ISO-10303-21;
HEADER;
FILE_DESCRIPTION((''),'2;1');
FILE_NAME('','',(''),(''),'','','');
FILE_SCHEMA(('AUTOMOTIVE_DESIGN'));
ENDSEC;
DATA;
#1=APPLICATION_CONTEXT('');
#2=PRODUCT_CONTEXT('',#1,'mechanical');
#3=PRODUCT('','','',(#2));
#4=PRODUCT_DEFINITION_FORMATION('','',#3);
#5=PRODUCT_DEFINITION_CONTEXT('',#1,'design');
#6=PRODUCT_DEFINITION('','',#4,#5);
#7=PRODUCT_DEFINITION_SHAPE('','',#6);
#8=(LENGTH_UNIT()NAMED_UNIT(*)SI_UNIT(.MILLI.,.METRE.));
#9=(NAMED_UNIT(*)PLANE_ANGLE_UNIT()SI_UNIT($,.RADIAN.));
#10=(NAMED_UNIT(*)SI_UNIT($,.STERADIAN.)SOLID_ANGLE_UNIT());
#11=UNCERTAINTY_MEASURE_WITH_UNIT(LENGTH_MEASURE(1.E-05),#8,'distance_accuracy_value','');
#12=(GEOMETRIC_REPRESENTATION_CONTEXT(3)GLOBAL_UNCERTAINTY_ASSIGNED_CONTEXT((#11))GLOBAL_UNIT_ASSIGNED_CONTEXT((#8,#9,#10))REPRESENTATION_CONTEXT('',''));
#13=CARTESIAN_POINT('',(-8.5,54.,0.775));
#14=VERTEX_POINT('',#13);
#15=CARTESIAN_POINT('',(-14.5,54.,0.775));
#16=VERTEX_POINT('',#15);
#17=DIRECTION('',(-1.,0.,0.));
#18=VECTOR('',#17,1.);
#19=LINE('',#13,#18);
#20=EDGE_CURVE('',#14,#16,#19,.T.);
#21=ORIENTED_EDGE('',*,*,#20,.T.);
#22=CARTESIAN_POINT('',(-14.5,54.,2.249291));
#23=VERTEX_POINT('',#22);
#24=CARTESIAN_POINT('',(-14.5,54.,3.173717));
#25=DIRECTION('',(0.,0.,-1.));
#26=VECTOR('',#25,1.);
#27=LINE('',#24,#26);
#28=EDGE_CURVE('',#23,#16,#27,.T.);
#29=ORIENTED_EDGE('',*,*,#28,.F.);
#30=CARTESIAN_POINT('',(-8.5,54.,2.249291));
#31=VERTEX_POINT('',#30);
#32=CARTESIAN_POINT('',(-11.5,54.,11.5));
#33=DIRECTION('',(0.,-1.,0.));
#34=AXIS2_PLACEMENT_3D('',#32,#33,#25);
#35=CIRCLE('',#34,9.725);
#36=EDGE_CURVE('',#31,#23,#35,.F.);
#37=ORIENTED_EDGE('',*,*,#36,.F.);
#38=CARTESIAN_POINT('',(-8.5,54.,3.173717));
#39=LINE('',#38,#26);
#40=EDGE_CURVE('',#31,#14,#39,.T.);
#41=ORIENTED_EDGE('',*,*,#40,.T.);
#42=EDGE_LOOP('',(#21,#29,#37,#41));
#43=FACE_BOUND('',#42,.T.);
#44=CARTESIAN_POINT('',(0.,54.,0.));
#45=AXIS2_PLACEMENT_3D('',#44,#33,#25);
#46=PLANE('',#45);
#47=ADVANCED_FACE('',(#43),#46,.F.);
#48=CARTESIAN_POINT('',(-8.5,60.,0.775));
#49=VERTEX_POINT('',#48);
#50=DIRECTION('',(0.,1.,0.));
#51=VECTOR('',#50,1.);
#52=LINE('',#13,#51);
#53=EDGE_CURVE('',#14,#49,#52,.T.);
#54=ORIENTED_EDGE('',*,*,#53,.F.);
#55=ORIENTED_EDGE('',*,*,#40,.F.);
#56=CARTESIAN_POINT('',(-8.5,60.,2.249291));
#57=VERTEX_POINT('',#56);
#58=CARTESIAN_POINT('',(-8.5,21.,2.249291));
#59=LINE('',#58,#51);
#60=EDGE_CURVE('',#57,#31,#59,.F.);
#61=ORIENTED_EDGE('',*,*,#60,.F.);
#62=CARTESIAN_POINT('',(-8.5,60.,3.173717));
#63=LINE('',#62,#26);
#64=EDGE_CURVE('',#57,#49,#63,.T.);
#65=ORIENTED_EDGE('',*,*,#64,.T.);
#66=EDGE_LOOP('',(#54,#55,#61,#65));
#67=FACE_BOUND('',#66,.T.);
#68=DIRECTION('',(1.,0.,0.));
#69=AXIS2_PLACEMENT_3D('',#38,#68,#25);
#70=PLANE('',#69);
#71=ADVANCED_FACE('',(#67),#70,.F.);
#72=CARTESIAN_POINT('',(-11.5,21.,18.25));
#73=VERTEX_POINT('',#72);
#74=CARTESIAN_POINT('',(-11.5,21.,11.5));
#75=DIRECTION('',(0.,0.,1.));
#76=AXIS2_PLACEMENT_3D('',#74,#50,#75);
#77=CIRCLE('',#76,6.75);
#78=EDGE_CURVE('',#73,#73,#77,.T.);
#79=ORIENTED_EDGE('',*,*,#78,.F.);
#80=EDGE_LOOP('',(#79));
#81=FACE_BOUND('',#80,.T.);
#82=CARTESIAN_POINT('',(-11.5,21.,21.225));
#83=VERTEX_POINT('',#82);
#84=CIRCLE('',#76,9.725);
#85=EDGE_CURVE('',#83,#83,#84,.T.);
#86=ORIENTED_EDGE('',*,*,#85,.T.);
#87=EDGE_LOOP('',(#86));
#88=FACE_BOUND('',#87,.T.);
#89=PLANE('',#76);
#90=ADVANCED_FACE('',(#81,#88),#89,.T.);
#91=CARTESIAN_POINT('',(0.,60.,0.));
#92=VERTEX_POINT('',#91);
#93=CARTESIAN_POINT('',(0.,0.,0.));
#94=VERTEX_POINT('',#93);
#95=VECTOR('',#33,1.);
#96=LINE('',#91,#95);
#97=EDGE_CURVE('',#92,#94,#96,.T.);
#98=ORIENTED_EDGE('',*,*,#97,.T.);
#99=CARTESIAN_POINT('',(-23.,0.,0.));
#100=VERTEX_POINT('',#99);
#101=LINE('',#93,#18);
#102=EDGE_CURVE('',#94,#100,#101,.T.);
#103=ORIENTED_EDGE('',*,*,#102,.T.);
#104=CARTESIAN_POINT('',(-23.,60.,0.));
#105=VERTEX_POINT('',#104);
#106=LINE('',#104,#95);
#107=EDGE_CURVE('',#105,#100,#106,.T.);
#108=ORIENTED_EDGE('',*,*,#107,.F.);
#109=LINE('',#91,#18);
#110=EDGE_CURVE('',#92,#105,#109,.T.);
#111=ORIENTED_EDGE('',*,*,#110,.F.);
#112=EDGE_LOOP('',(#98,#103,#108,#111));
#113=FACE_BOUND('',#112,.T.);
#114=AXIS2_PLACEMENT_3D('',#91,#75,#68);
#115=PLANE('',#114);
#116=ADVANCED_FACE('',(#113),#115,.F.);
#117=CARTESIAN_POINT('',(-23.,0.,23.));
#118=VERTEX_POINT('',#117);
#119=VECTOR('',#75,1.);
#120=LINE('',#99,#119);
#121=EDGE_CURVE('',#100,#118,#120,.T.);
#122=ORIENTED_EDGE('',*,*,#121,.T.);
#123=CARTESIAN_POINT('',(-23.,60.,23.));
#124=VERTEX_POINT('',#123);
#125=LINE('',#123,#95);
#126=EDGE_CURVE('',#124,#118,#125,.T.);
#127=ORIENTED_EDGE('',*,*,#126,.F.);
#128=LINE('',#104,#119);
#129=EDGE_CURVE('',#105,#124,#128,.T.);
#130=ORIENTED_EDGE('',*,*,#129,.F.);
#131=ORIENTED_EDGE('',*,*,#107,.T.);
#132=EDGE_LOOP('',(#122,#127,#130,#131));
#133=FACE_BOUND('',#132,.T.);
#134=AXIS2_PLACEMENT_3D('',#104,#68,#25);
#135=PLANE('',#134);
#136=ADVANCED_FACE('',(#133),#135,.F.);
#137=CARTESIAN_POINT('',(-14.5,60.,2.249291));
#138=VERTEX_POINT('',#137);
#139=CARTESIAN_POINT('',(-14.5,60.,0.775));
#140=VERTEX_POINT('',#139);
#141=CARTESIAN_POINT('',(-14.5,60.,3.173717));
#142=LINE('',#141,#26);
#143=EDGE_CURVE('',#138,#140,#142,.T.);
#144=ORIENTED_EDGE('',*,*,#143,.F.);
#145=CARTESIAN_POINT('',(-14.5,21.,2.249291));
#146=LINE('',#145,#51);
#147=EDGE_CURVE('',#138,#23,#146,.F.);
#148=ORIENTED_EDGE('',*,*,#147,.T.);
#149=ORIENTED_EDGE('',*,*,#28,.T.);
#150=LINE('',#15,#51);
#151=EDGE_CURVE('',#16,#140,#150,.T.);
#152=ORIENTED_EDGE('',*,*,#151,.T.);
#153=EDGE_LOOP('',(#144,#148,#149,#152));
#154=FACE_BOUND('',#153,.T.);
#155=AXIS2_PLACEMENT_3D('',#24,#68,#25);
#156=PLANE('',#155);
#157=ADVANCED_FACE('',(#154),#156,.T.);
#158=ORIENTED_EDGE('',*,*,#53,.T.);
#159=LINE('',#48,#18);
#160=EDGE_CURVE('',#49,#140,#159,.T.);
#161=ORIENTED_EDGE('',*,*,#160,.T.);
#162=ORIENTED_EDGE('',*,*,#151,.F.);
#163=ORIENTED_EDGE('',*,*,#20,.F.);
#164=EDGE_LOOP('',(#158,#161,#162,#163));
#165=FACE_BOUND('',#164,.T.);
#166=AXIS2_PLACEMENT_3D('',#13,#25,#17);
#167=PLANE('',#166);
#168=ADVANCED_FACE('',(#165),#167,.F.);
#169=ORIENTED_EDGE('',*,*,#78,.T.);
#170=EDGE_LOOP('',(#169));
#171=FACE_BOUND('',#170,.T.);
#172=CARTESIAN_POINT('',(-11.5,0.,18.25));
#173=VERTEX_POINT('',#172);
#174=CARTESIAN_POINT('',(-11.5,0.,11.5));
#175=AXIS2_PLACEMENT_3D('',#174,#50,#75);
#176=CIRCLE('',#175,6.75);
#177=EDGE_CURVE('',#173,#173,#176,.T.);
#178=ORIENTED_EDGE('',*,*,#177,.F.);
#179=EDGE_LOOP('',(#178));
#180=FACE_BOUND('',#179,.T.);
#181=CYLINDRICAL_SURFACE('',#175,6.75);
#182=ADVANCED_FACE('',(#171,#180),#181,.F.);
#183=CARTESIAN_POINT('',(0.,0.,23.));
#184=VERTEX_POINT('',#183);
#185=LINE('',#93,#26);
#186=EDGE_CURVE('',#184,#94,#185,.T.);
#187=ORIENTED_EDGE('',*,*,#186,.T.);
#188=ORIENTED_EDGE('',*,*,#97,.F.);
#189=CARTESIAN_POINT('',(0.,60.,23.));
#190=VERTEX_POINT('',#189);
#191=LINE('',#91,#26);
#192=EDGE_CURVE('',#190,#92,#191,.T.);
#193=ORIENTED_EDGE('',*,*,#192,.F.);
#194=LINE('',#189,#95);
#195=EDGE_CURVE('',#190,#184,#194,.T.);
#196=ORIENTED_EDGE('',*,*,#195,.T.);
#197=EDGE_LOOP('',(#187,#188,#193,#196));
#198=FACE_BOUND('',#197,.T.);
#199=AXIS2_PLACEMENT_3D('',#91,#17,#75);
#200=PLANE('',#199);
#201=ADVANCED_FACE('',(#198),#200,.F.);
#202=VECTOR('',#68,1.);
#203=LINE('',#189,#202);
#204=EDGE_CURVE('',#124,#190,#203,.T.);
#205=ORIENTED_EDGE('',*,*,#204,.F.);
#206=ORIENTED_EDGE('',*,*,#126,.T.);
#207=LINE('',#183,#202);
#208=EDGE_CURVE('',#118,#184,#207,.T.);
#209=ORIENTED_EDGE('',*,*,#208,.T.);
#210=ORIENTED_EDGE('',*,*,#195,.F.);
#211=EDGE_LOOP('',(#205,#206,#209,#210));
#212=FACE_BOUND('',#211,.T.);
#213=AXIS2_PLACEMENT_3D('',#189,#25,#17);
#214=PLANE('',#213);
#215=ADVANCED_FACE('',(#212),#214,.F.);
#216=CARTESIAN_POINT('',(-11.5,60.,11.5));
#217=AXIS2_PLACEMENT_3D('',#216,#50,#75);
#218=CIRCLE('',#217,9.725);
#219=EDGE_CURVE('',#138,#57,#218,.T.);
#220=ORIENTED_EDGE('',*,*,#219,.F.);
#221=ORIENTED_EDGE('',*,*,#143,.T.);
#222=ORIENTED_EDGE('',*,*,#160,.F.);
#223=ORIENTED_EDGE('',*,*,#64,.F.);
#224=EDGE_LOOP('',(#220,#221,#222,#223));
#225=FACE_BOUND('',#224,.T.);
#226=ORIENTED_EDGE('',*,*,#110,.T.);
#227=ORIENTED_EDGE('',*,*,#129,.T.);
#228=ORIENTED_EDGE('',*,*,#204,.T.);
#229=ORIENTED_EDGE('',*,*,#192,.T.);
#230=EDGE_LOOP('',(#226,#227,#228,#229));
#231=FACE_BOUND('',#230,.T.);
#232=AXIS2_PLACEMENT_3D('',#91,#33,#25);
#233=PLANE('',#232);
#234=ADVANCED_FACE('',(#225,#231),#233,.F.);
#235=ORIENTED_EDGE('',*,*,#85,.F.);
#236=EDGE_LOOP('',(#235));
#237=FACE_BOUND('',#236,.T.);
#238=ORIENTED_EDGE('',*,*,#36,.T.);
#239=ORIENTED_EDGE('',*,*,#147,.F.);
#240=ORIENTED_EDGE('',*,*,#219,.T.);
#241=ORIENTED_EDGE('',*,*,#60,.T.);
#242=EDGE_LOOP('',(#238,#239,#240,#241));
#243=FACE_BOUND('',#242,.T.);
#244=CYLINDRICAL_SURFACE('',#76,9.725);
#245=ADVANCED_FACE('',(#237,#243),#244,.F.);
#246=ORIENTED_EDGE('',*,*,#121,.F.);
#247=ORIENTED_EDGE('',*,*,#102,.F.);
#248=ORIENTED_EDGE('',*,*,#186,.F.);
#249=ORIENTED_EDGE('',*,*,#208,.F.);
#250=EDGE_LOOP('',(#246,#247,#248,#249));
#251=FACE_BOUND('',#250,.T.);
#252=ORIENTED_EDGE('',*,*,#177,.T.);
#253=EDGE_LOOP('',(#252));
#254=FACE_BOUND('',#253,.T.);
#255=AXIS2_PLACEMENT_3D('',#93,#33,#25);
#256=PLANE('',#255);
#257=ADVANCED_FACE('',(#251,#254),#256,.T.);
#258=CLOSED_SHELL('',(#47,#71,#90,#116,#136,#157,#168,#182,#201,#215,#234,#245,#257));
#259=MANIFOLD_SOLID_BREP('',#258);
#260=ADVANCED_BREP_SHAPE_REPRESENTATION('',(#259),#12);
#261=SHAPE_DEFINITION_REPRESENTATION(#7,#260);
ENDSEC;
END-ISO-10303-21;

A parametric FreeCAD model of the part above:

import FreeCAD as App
import Part
import Sketcher
from FreeCAD import Vector
Q = App.Units.Quantity


def add_polygon(sketch, points):
    """Adds a closed chain of lines whose ends are joined by coincident constraints."""
    first, n = sketch.GeometryCount, len(points)
    for a, b in zip(points, points[1:] + points[:1]):
        sketch.addGeometry(Part.LineSegment(App.Vector(*a, 0), App.Vector(*b, 0)), False)
    for i in range(n):
        sketch.addConstraint(Sketcher.Constraint("Coincident", first + i, 2, first + (i + 1) % n, 1))

doc = App.newDocument("Part")
body = doc.addObject("PartDesign::Body", "Body")

# Sketch on XZ plane
sketch1 = body.newObject("Sketcher::SketchObject", "Sketch")
sketch1.AttachmentSupport = (doc.getObject("XZ_Plane"), [""])
sketch1.MapMode = "FlatFace"
add_polygon(sketch1, [(0, 23), (0, 0), (-23, 0), (-23, 23)])  # lines 0-3
sketch1.addConstraint([
    Sketcher.Constraint("Vertical", 0),
    Sketcher.Constraint("Horizontal", 1),
    Sketcher.Constraint("Vertical", 2),
    Sketcher.Constraint("Horizontal", 3),
    Sketcher.Constraint("Coincident", 0, 2, -1, 1),
    Sketcher.Constraint("Equal", 3, 0),
    Sketcher.Constraint("DistanceX", 1, 2, 1, 1, Q("23 mm")),
])
pad1 = body.newObject("PartDesign::Pad", "Pad")
pad1.Profile = sketch1
pad1.Length = 60
pad1.Reversed = True

# Sketch on XZ plane
sketch2 = body.newObject("Sketcher::SketchObject", "Sketch001")
sketch2.AttachmentSupport = (doc.getObject("XZ_Plane"), [""])
sketch2.MapMode = "FlatFace"
sketch2.AttachmentOffset = App.Placement(Vector(0, 0, -60), App.Rotation())
sketch2.addGeometry(Part.Circle(Vector(-12, 12, 0), Vector(0, 0, 1), 10), False)
sketch2.addConstraint([
    Sketcher.Constraint("Diameter", 0, Q("19.45 mm")),
    Sketcher.Constraint("DistanceX", 0, 3, -1, 1, Q("11.5 mm")),
    Sketcher.Constraint("DistanceY", -1, 1, 0, 3, Q("11.5 mm")),
])
pocket1 = body.newObject("PartDesign::Pocket", "Pocket")
pocket1.Profile = sketch2
pocket1.Length = 39
pocket1.Reversed = True

# Sketch on XZ plane
sketch3 = body.newObject("Sketcher::SketchObject", "Sketch002")
sketch3.AttachmentSupport = (doc.getObject("XZ_Plane"), [""])
sketch3.MapMode = "FlatFace"
sketch3.AttachmentOffset = App.Placement(Vector(0, 0, -21), App.Rotation())
sketch3.addGeometry(Part.Circle(Vector(-12, 12, 0), Vector(0, 0, 1), 7), False)
sketch3.addConstraint([
    Sketcher.Constraint("Diameter", 0, Q("13.5 mm")),
    Sketcher.Constraint("DistanceX", 0, 3, -1, 1, Q("11.5 mm")),
    Sketcher.Constraint("DistanceY", -1, 1, 0, 3, Q("11.5 mm")),
])
pocket2 = body.newObject("PartDesign::Pocket", "Pocket001")
pocket2.Profile = sketch3
pocket2.Type = "ThroughAll"
pocket2.Reversed = True

# Sketch on XZ plane
sketch4 = body.newObject("Sketcher::SketchObject", "Sketch003")
sketch4.AttachmentSupport = (doc.getObject("XZ_Plane"), [""])
sketch4.MapMode = "FlatFace"
sketch4.AttachmentOffset = App.Placement(Vector(0, 0, -60), App.Rotation())
add_polygon(sketch4, [(-8.5, 3.2), (-8.5, 0.8), (-14.5, 0.8), (-14.5, 3.2)])  # lines 0-3
sketch4.addConstraint([
    Sketcher.Constraint("Vertical", 0),
    Sketcher.Constraint("Horizontal", 1),
    Sketcher.Constraint("Vertical", 2),
    Sketcher.Constraint("Horizontal", 3),
    Sketcher.Constraint("DistanceX", 1, 2, 1, 1, Q("6 mm")),
    Sketcher.Constraint("DistanceX", 0, 2, -1, 1, Q("8.5 mm")),
    Sketcher.Constraint("DistanceY", -1, 1, 0, 2, Q("0.775 mm")),
    Sketcher.Constraint("DistanceY", 0, 2, 0, 1, Q("2.398717 mm")),
])
pocket3 = body.newObject("PartDesign::Pocket", "Pocket002")
pocket3.Profile = sketch4
pocket3.Length = 6
pocket3.Reversed = True

doc.recompute()
